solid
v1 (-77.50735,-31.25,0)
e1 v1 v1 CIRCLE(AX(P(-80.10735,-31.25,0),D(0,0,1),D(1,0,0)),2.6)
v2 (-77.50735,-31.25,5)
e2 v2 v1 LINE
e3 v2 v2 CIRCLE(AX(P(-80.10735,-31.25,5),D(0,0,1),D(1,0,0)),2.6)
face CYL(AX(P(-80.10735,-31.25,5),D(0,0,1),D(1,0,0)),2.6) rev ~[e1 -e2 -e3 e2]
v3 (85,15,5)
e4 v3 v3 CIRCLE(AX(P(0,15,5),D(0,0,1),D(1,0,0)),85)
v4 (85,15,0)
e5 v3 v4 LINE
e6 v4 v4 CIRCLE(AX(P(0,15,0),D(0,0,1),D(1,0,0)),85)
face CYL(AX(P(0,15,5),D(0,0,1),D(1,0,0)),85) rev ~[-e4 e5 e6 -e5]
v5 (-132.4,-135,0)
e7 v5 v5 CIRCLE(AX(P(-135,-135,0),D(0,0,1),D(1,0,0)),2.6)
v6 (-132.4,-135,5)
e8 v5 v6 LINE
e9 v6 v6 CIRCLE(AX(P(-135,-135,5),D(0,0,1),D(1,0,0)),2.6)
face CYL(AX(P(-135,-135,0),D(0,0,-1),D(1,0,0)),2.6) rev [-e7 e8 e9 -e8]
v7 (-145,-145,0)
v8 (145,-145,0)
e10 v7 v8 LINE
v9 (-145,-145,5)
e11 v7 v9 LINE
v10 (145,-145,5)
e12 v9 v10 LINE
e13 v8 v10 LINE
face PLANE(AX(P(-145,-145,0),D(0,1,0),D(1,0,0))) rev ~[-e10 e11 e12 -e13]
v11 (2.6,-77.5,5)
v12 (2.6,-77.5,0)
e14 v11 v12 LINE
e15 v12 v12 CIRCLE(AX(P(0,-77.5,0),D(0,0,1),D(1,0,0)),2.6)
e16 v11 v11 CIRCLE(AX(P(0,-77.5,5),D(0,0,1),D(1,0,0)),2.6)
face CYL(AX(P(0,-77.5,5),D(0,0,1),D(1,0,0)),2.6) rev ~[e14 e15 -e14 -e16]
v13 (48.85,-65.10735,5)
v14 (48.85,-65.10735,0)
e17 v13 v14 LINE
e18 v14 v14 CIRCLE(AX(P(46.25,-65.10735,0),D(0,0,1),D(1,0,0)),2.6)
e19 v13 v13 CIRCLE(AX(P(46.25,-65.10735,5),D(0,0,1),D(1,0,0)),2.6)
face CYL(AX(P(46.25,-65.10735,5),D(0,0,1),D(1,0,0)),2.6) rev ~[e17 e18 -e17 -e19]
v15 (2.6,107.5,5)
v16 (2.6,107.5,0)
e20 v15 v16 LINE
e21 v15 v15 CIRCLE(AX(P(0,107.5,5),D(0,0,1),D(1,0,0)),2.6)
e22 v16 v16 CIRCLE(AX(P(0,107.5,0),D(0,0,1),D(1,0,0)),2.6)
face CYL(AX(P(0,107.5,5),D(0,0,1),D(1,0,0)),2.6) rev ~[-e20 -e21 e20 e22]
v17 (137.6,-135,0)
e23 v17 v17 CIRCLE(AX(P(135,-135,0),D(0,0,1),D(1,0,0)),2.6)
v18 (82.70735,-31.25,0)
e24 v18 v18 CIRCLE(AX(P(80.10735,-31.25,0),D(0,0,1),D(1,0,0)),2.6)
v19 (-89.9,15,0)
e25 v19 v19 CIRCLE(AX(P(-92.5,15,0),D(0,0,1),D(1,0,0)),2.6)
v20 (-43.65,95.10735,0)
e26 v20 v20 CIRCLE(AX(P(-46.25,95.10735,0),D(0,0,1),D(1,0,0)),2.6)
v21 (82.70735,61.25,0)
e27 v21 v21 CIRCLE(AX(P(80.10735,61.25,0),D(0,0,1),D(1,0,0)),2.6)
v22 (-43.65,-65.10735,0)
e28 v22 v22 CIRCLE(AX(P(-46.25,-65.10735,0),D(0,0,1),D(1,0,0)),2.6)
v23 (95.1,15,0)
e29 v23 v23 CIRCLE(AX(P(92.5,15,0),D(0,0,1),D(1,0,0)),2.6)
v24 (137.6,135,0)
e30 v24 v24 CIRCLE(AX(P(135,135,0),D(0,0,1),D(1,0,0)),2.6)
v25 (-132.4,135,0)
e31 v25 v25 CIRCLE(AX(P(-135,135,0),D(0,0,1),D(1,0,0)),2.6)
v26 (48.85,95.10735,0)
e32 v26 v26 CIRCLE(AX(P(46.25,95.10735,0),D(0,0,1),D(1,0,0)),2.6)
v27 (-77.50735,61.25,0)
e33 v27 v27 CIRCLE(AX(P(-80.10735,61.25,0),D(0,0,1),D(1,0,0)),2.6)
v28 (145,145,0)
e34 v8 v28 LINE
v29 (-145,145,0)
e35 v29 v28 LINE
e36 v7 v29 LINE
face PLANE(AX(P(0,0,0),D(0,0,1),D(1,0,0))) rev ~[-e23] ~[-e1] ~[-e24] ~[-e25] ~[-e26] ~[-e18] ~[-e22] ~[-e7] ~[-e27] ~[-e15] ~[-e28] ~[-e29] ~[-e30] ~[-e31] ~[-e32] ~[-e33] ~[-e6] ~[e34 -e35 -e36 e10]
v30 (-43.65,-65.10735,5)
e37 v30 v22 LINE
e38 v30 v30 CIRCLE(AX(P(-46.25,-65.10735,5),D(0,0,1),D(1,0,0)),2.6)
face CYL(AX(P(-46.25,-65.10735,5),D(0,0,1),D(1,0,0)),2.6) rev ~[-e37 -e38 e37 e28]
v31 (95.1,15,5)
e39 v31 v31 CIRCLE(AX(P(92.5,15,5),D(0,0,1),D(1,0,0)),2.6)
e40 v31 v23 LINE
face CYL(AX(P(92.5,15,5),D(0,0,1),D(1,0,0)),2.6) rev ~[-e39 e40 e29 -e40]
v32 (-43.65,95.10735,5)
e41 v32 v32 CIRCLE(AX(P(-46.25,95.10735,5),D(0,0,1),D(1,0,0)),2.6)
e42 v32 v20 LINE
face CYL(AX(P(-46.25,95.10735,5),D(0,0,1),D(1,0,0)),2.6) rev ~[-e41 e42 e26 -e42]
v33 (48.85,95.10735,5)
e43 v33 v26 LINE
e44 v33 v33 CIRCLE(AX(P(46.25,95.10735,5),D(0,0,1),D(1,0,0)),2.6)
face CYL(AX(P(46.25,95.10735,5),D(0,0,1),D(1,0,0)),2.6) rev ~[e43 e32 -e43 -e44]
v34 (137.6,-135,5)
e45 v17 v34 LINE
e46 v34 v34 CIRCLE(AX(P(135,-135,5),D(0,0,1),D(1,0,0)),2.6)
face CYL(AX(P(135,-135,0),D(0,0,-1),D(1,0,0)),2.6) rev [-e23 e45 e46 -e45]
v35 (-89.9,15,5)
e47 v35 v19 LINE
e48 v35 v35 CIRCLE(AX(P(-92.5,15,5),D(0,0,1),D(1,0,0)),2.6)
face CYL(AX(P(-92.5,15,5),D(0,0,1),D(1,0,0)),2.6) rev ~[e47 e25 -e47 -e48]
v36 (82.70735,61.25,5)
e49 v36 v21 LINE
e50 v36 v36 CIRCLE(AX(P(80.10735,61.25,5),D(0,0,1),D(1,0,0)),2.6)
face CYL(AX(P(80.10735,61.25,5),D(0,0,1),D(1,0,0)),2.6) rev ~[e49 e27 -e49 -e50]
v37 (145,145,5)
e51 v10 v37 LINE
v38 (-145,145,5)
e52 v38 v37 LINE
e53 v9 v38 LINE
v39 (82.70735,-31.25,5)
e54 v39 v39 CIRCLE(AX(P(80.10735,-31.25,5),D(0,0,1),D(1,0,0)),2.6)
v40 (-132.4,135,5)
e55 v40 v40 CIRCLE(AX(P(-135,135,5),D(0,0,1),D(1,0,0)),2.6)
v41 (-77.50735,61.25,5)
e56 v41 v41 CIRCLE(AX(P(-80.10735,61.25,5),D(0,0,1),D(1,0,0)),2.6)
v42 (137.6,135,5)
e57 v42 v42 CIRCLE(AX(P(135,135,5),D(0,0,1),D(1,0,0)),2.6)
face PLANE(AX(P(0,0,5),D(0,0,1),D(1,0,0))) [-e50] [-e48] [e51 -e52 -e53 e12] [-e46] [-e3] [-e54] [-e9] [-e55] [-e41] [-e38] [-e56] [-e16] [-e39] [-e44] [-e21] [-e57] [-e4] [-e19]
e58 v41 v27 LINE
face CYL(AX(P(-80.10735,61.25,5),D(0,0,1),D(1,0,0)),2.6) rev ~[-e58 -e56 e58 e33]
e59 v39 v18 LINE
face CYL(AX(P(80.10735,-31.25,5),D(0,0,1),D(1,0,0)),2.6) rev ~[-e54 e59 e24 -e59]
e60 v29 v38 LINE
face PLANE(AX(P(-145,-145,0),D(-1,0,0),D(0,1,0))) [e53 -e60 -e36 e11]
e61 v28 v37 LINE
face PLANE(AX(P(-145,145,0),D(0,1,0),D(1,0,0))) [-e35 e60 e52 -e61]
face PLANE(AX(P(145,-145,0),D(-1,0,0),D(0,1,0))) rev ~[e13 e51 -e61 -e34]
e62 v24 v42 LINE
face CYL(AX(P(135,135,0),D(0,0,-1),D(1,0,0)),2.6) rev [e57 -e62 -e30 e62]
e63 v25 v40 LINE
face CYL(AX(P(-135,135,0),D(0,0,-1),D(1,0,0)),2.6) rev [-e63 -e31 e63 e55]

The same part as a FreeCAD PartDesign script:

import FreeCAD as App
import Part
import Sketcher
from FreeCAD import Vector

doc = App.newDocument("Part")
body = doc.addObject("PartDesign::Body", "Body")

# Sketch on XY plane
sketch1 = body.newObject("Sketcher::SketchObject", "Sketch")
sketch1.AttachmentSupport = (doc.getObject("XY_Plane"), [""])
sketch1.MapMode = "FlatFace"
sketch1.addGeometry(Part.LineSegment(Vector(-145, 145, 0), Vector(-145, -145, 0)), False)
sketch1.addGeometry(Part.LineSegment(Vector(-145, -145, 0), Vector(145, -145, 0)), False)
sketch1.addGeometry(Part.LineSegment(Vector(145, -145, 0), Vector(145, 145, 0)), False)
sketch1.addGeometry(Part.LineSegment(Vector(145, 145, 0), Vector(-145, 145, 0)), False)
sketch1.addGeometry(Part.Circle(Vector(-135, -135, 0), Vector(0, 0, 1), 2.6), False)
sketch1.addGeometry(Part.Circle(Vector(135, -135, 0), Vector(0, 0, 1), 2.6), False)
sketch1.addGeometry(Part.Circle(Vector(-135, 135, 0), Vector(0, 0, 1), 2.6), False)
sketch1.addGeometry(Part.Circle(Vector(135, 135, 0), Vector(0, 0, 1), 2.6), False)
sketch1.addConstraint(Sketcher.Constraint("Coincident", 0, 2, 1, 1))
sketch1.addConstraint(Sketcher.Constraint("Coincident", 1, 2, 2, 1))
sketch1.addConstraint(Sketcher.Constraint("Coincident", 2, 2, 3, 1))
sketch1.addConstraint(Sketcher.Constraint("Coincident", 3, 2, 0, 1))
sketch1.addConstraint(Sketcher.Constraint("Vertical", 0))
sketch1.addConstraint(Sketcher.Constraint("Horizontal", 1))
sketch1.addConstraint(Sketcher.Constraint("Vertical", 2))
sketch1.addConstraint(Sketcher.Constraint("Horizontal", 3))
sketch1.addConstraint(Sketcher.Constraint("Equal", 4, 5))
sketch1.addConstraint(Sketcher.Constraint("Equal", 5, 6))
sketch1.addConstraint(Sketcher.Constraint("Equal", 6, 7))
sketch1.addConstraint(Sketcher.Constraint("Symmetric", 5, 3, 6, 3, -1, 1))
sketch1.addConstraint(Sketcher.Constraint("Symmetric", 4, 3, 7, 3, -1, 1))
sketch1.addConstraint(Sketcher.Constraint("Symmetric", 0, 2, 2, 2, -1, 1))
sketch1.addConstraint(Sketcher.Constraint("Symmetric", 4, 3, 5, 3, -2))
sketch1.addConstraint(Sketcher.Constraint("Equal", 3, 0))
sketch1.addConstraint(Sketcher.Constraint("Diameter", 4, 5.2))
sketch1.addConstraint(Sketcher.Constraint("DistanceX", 1, 1, 1, 2, 290.0))
sketch1.addConstraint(Sketcher.Constraint("DistanceX", 4, 3, -1, 1, 135.0))
sketch1.addConstraint(Sketcher.Constraint("DistanceY", 4, 3, -1, 1, 135.0))
pad1 = body.newObject("PartDesign::Pad", "Pad")
pad1.Profile = sketch1
pad1.Length = 5

# Sketch on XY plane
sketch2 = body.newObject("Sketcher::SketchObject", "Sketch001")
sketch2.AttachmentSupport = (doc.getObject("XY_Plane"), [""])
sketch2.MapMode = "FlatFace"
sketch2.AttachmentOffset = App.Placement(Vector(0, 0, 5), App.Rotation())
sketch2.addGeometry(Part.Circle(Vector(0, 15, 0), Vector(0, 0, 1), 85), False)
sketch2.addConstraint(Sketcher.Constraint("PointOnObject", 0, 3, -2))
sketch2.addConstraint(Sketcher.Constraint("Diameter", 0, 170.0))
sketch2.addConstraint(Sketcher.Constraint("DistanceY", -1, 1, 0, 3, 15.0))
pocket1 = body.newObject("PartDesign::Pocket", "Pocket")
pocket1.Profile = sketch2
pocket1.Type = "ThroughAll"

# Sketch on XY plane
sketch3 = body.newObject("Sketcher::SketchObject", "Sketch002")
sketch3.AttachmentSupport = (doc.getObject("XY_Plane"), [""])
sketch3.MapMode = "FlatFace"
sketch3.AttachmentOffset = App.Placement(Vector(0, 0, 5), App.Rotation())
sketch3.addGeometry(Part.Circle(Vector(0, 107.5, 0), Vector(0, 0, 1), 2.6), False)
sketch3.addGeometry(Part.Circle(Vector(-46.25, 95.10735, 0), Vector(0, 0, 1), 2.6), False)
sketch3.addGeometry(Part.Circle(Vector(-80.10735, 61.25, 0), Vector(0, 0, 1), 2.6), False)
sketch3.addGeometry(Part.Circle(Vector(-92.5, 15, 0), Vector(0, 0, 1), 2.6), False)
sketch3.addGeometry(Part.Circle(Vector(-80.10735, -31.25, 0), Vector(0, 0, 1), 2.6), False)
sketch3.addGeometry(Part.Circle(Vector(-46.25, -65.10735, 0), Vector(0, 0, 1), 2.6), False)
sketch3.addGeometry(Part.Circle(Vector(0, -77.5, 0), Vector(0, 0, 1), 2.6), False)
sketch3.addGeometry(Part.Circle(Vector(46.25, -65.10735, 0), Vector(0, 0, 1), 2.6), False)
sketch3.addGeometry(Part.Circle(Vector(80.10735, -31.25, 0), Vector(0, 0, 1), 2.6), False)
sketch3.addGeometry(Part.Circle(Vector(92.5, 15, 0), Vector(0, 0, 1), 2.6), False)
sketch3.addGeometry(Part.Circle(Vector(80.10735, 61.25, 0), Vector(0, 0, 1), 2.6), False)
sketch3.addGeometry(Part.Circle(Vector(46.25, 95.10735, 0), Vector(0, 0, 1), 2.6), False)
sketch3.addConstraint(Sketcher.Constraint("Equal", 0, 1))
sketch3.addConstraint(Sketcher.Constraint("Equal", 1, 2))
sketch3.addConstraint(Sketcher.Constraint("Equal", 2, 3))
sketch3.addConstraint(Sketcher.Constraint("Equal", 3, 4))
sketch3.addConstraint(Sketcher.Constraint("Equal", 4, 5))
sketch3.addConstraint(Sketcher.Constraint("Equal", 5, 6))
sketch3.addConstraint(Sketcher.Constraint("Equal", 6, 7))
sketch3.addConstraint(Sketcher.Constraint("Equal", 7, 8))
sketch3.addConstraint(Sketcher.Constraint("Equal", 8, 9))
sketch3.addConstraint(Sketcher.Constraint("Equal", 9, 10))
sketch3.addConstraint(Sketcher.Constraint("Equal", 10, 11))
sketch3.addConstraint(Sketcher.Constraint("Symmetric", 5, 3, 7, 3, -2))
sketch3.addConstraint(Sketcher.Constraint("Symmetric", 4, 3, 8, 3, -2))
sketch3.addConstraint(Sketcher.Constraint("Symmetric", 3, 3, 9, 3, -2))
sketch3.addConstraint(Sketcher.Constraint("Symmetric", 2, 3, 10, 3, -2))
sketch3.addConstraint(Sketcher.Constraint("Symmetric", 1, 3, 11, 3, -2))
sketch3.addConstraint(Sketcher.Constraint("PointOnObject", 0, 3, -2))
sketch3.addConstraint(Sketcher.Constraint("PointOnObject", 6, 3, -2))
sketch3.addConstraint(Sketcher.Constraint("Vertical", 2, 3, 4, 3))
sketch3.addConstraint(Sketcher.Constraint("Vertical", 1, 3, 5, 3))
sketch3.addConstraint(Sketcher.Constraint("Diameter", 0, 5.2))
sketch3.addConstraint(Sketcher.Constraint("DistanceY", -1, 1, 3, 3, 15.0))
sketch3.addConstraint(Sketcher.Constraint("DistanceY", -1, 1, 0, 3, 107.5))
sketch3.addConstraint(Sketcher.Constraint("DistanceX", 3, 3, -1, 1, 92.5))
sketch3.addConstraint(Sketcher.Constraint("DistanceY", 6, 3, -1, 1, 77.5))
sketch3.addConstraint(Sketcher.Constraint("DistanceY", 4, 3, 2, 3, 92.5))
sketch3.addConstraint(Sketcher.Constraint("DistanceX", 5, 3, 7, 3, 92.5))
sketch3.addConstraint(Sketcher.Constraint("DistanceY", -1, 1, 2, 3, 61.25))
sketch3.addConstraint(Sketcher.Constraint("DistanceY", 5, 3, 1, 3, 160.2147))
sketch3.addConstraint(Sketcher.Constraint("DistanceX", 4, 3, 8, 3, 160.2147))
sketch3.addConstraint(Sketcher.Constraint("DistanceY", -1, 1, 1, 3, 95.10735))
pocket2 = body.newObject("PartDesign::Pocket", "Pocket001")
pocket2.Profile = sketch3
pocket2.Type = "ThroughAll"

doc.recompute()
